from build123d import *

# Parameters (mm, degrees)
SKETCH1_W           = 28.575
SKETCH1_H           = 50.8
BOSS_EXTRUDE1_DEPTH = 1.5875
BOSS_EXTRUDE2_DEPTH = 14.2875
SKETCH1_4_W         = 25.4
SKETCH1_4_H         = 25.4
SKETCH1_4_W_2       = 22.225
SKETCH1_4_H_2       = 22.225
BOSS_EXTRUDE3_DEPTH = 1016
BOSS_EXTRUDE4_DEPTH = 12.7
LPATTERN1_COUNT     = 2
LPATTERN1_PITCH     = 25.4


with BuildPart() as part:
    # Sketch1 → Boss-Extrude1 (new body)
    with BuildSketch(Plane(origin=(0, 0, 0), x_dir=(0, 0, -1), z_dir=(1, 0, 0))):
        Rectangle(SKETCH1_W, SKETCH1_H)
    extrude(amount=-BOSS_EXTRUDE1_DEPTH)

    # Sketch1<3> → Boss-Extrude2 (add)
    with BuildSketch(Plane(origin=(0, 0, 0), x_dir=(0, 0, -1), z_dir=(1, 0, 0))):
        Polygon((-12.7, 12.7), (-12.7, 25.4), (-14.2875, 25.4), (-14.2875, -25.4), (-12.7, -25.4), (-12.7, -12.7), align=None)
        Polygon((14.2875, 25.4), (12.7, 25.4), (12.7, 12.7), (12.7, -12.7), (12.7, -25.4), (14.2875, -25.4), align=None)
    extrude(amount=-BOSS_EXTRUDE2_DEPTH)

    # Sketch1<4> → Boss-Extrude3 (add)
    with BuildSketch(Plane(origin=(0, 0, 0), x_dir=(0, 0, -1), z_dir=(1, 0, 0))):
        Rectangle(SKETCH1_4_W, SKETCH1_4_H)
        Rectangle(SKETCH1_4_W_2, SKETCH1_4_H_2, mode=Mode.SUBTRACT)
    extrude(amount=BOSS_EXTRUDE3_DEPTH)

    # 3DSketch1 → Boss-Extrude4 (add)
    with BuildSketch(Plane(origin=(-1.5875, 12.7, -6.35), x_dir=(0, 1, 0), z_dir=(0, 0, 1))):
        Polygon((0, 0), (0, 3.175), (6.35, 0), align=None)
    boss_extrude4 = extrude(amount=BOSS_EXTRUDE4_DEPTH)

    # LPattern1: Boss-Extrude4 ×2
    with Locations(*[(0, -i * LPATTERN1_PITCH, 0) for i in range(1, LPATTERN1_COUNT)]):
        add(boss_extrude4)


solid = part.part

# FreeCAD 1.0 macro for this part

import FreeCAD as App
import Part
import Sketcher
Q = App.Units.Quantity

doc = App.newDocument("Part")
body = doc.addObject("PartDesign::Body", "Body")

# Sketch on YZ plane
sketch1 = body.newObject("Sketcher::SketchObject", "Sketch")
sketch1.AttachmentSupport = (doc.getObject("YZ_Plane"), [""])
sketch1.MapMode = "FlatFace"
sketch1.addGeometry(Part.LineSegment(App.Vector(25, 14, 0), App.Vector(-25, 14, 0)), False)
sketch1.addGeometry(Part.LineSegment(App.Vector(-25, 14, 0), App.Vector(-25, -14, 0)), False)
sketch1.addGeometry(Part.LineSegment(App.Vector(-25, -14, 0), App.Vector(25, -14, 0)), False)
sketch1.addGeometry(Part.LineSegment(App.Vector(25, -14, 0), App.Vector(25, 14, 0)), False)
sketch1.addConstraint(Sketcher.Constraint("Coincident", 0, 2, 1, 1))
sketch1.addConstraint(Sketcher.Constraint("Coincident", 1, 2, 2, 1))
sketch1.addConstraint(Sketcher.Constraint("Coincident", 2, 2, 3, 1))
sketch1.addConstraint(Sketcher.Constraint("Coincident", 3, 2, 0, 1))
sketch1.addConstraint(Sketcher.Constraint("Horizontal", 0))
sketch1.addConstraint(Sketcher.Constraint("Vertical", 1))
sketch1.addConstraint(Sketcher.Constraint("Horizontal", 2))
sketch1.addConstraint(Sketcher.Constraint("Vertical", 3))
sketch1.addConstraint(Sketcher.Constraint("Symmetric", 0, 2, 2, 2, -1, 1))
sketch1.addConstraint(Sketcher.Constraint("DistanceX", 0, 2, 0, 1, Q("2 in")))
sketch1.addConstraint(Sketcher.Constraint("DistanceY", 1, 2, 1, 1, Q("1.125 in")))
pad1 = body.newObject("PartDesign::Pad", "Pad")
pad1.Profile = sketch1
pad1.Length = Q("0.0625 in")
pad1.Reversed = True

# Sketch on YZ plane
sketch2 = body.newObject("Sketcher::SketchObject", "Sketch001")
sketch2.AttachmentSupport = (doc.getObject("YZ_Plane"), [""])
sketch2.MapMode = "FlatFace"
sketch2.addGeometry(Part.LineSegment(App.Vector(25.4, 12.7, 0), App.Vector(25.4, 14.3, 0)), False)
sketch2.addGeometry(Part.LineSegment(App.Vector(25.4, 14.3, 0), App.Vector(-25.4, 14.3, 0)), False)
sketch2.addGeometry(Part.LineSegment(App.Vector(-25.4, 14.3, 0), App.Vector(-25.4, 12.7, 0)), False)
sketch2.addGeometry(Part.LineSegment(App.Vector(-25.4, 12.7, 0), App.Vector(25.4, 12.7, 0)), False)
sketch2.addGeometry(Part.LineSegment(App.Vector(25.4, -14.3, 0), App.Vector(25.4, -12.7, 0)), False)
sketch2.addGeometry(Part.LineSegment(App.Vector(25.4, -12.7, 0), App.Vector(-25.4, -12.7, 0)), False)
sketch2.addGeometry(Part.LineSegment(App.Vector(-25.4, -12.7, 0), App.Vector(-25.4, -14.3, 0)), False)
sketch2.addGeometry(Part.LineSegment(App.Vector(-25.4, -14.3, 0), App.Vector(25.4, -14.3, 0)), False)
sketch2.addConstraint(Sketcher.Constraint("Coincident", 0, 2, 1, 1))
sketch2.addConstraint(Sketcher.Constraint("Coincident", 1, 2, 2, 1))
sketch2.addConstraint(Sketcher.Constraint("Coincident", 2, 2, 3, 1))
sketch2.addConstraint(Sketcher.Constraint("Coincident", 3, 2, 0, 1))
sketch2.addConstraint(Sketcher.Constraint("Coincident", 4, 2, 5, 1))
sketch2.addConstraint(Sketcher.Constraint("Coincident", 5, 2, 6, 1))
sketch2.addConstraint(Sketcher.Constraint("Coincident", 6, 2, 7, 1))
sketch2.addConstraint(Sketcher.Constraint("Coincident", 7, 2, 4, 1))
sketch2.addConstraint(Sketcher.Constraint("Vertical", 0))
sketch2.addConstraint(Sketcher.Constraint("Horizontal", 1))
sketch2.addConstraint(Sketcher.Constraint("Vertical", 2))
sketch2.addConstraint(Sketcher.Constraint("Horizontal", 3))
sketch2.addConstraint(Sketcher.Constraint("Vertical", 4))
sketch2.addConstraint(Sketcher.Constraint("Horizontal", 5))
sketch2.addConstraint(Sketcher.Constraint("Vertical", 6))
sketch2.addConstraint(Sketcher.Constraint("Horizontal", 7))
sketch2.addConstraint(Sketcher.Constraint("Symmetric", 2, 2, 4, 2, -1, 1))
sketch2.addConstraint(Sketcher.Constraint("Symmetric", 0, 2, 6, 2, -1, 1))
sketch2.addConstraint(Sketcher.Constraint("Vertical", 3, 2, 4, 2))
sketch2.addConstraint(Sketcher.Constraint("DistanceX", 1, 2, 1, 1, Q("2 in")))
sketch2.addConstraint(Sketcher.Constraint("DistanceY", 4, 2, 3, 2, Q("1 in")))
sketch2.addConstraint(Sketcher.Constraint("DistanceY", 0, 1, 0, 2, Q("0.0625 in")))
pad2 = body.newObject("PartDesign::Pad", "Pad001")
pad2.Profile = sketch2
pad2.Length = Q("0.5625 in")
pad2.Reversed = True

# Sketch on YZ plane
sketch3 = body.newObject("Sketcher::SketchObject", "Sketch002")
sketch3.AttachmentSupport = (doc.getObject("YZ_Plane"), [""])
sketch3.MapMode = "FlatFace"
sketch3.addGeometry(Part.LineSegment(App.Vector(13, 13, 0), App.Vector(-13, 13, 0)), False)
sketch3.addGeometry(Part.LineSegment(App.Vector(-13, 13, 0), App.Vector(-13, -13, 0)), False)
sketch3.addGeometry(Part.LineSegment(App.Vector(-13, -13, 0), App.Vector(13, -13, 0)), False)
sketch3.addGeometry(Part.LineSegment(App.Vector(13, -13, 0), App.Vector(13, 13, 0)), False)
sketch3.addGeometry(Part.LineSegment(App.Vector(-11, -11, 0), App.Vector(-11, 11, 0)), False)
sketch3.addGeometry(Part.LineSegment(App.Vector(-11, 11, 0), App.Vector(11, 11, 0)), False)
sketch3.addGeometry(Part.LineSegment(App.Vector(11, 11, 0), App.Vector(11, -11, 0)), False)
sketch3.addGeometry(Part.LineSegment(App.Vector(11, -11, 0), App.Vector(-11, -11, 0)), False)
sketch3.addConstraint(Sketcher.Constraint("Coincident", 0, 2, 1, 1))
sketch3.addConstraint(Sketcher.Constraint("Coincident", 1, 2, 2, 1))
sketch3.addConstraint(Sketcher.Constraint("Coincident", 2, 2, 3, 1))
sketch3.addConstraint(Sketcher.Constraint("Coincident", 3, 2, 0, 1))
sketch3.addConstraint(Sketcher.Constraint("Coincident", 4, 2, 5, 1))
sketch3.addConstraint(Sketcher.Constraint("Coincident", 5, 2, 6, 1))
sketch3.addConstraint(Sketcher.Constraint("Coincident", 6, 2, 7, 1))
sketch3.addConstraint(Sketcher.Constraint("Coincident", 7, 2, 4, 1))
sketch3.addConstraint(Sketcher.Constraint("Horizontal", 0))
sketch3.addConstraint(Sketcher.Constraint("Vertical", 1))
sketch3.addConstraint(Sketcher.Constraint("Horizontal", 2))
sketch3.addConstraint(Sketcher.Constraint("Vertical", 3))
sketch3.addConstraint(Sketcher.Constraint("Vertical", 4))
sketch3.addConstraint(Sketcher.Constraint("Horizontal", 5))
sketch3.addConstraint(Sketcher.Constraint("Vertical", 6))
sketch3.addConstraint(Sketcher.Constraint("Horizontal", 7))
sketch3.addConstraint(Sketcher.Constraint("Symmetric", 0, 2, 2, 2, -1, 1))
sketch3.addConstraint(Sketcher.Constraint("Symmetric", 4, 2, 6, 2, -1, 1))
sketch3.addConstraint(Sketcher.Constraint("Equal", 2, 1))
sketch3.addConstraint(Sketcher.Constraint("Equal", 7, 4))
sketch3.addConstraint(Sketcher.Constraint("DistanceX", 0, 2, 0, 1, Q("1 in")))
sketch3.addConstraint(Sketcher.Constraint("DistanceX", 5, 1, 5, 2, Q("0.875 in")))
pad3 = body.newObject("PartDesign::Pad", "Pad002")
pad3.Profile = sketch3
pad3.Length = Q("40 in")

# Sketch on XY plane
sketch4 = body.newObject("Sketcher::SketchObject", "Sketch003")
sketch4.AttachmentSupport = (doc.getObject("XY_Plane"), [""])
sketch4.MapMode = "FlatFace"
sketch4.AttachmentOffset = App.Placement(App.Vector(0, 0, -0.25 * 25.4), App.Rotation())
sketch4.addGeometry(Part.LineSegment(App.Vector(-4.8, 12.7, 0), App.Vector(-1.6, 12.7, 0)), False)
sketch4.addGeometry(Part.LineSegment(App.Vector(-1.6, 12.7, 0), App.Vector(-1.6, 19.1, 0)), False)
sketch4.addGeometry(Part.LineSegment(App.Vector(-1.6, 19.1, 0), App.Vector(-4.8, 12.7, 0)), False)
sketch4.addConstraint(Sketcher.Constraint("Coincident", 0, 2, 1, 1))
sketch4.addConstraint(Sketcher.Constraint("Coincident", 1, 2, 2, 1))
sketch4.addConstraint(Sketcher.Constraint("Coincident", 2, 2, 0, 1))
sketch4.addConstraint(Sketcher.Constraint("Horizontal", 0))
sketch4.addConstraint(Sketcher.Constraint("Vertical", 1))
sketch4.addConstraint(Sketcher.Constraint("DistanceY", 1, 1, 1, 2, Q("0.25 in")))
sketch4.addConstraint(Sketcher.Constraint("DistanceY", -1, 1, 0, 2, Q("0.5 in")))
sketch4.addConstraint(Sketcher.Constraint("DistanceX", 0, 1, 0, 2, Q("0.125 in")))
sketch4.addConstraint(Sketcher.Constraint("DistanceX", 0, 2, -1, 1, Q("0.0625 in")))
pad4 = body.newObject("PartDesign::Pad", "Pad003")
pad4.Profile = sketch4
pad4.Length = Q("0.5 in")
doc.recompute()

linearpattern = body.newObject("PartDesign::LinearPattern", "LinearPattern")
linearpattern.Originals = [pad4]
linearpattern.Direction = (doc.getObject("Y_Axis"), [""])
linearpattern.Mode = "offset"
linearpattern.Offset = Q("1 in")
linearpattern.Occurrences = 2
linearpattern.Reversed = True
body.Tip = linearpattern

doc.recompute()
